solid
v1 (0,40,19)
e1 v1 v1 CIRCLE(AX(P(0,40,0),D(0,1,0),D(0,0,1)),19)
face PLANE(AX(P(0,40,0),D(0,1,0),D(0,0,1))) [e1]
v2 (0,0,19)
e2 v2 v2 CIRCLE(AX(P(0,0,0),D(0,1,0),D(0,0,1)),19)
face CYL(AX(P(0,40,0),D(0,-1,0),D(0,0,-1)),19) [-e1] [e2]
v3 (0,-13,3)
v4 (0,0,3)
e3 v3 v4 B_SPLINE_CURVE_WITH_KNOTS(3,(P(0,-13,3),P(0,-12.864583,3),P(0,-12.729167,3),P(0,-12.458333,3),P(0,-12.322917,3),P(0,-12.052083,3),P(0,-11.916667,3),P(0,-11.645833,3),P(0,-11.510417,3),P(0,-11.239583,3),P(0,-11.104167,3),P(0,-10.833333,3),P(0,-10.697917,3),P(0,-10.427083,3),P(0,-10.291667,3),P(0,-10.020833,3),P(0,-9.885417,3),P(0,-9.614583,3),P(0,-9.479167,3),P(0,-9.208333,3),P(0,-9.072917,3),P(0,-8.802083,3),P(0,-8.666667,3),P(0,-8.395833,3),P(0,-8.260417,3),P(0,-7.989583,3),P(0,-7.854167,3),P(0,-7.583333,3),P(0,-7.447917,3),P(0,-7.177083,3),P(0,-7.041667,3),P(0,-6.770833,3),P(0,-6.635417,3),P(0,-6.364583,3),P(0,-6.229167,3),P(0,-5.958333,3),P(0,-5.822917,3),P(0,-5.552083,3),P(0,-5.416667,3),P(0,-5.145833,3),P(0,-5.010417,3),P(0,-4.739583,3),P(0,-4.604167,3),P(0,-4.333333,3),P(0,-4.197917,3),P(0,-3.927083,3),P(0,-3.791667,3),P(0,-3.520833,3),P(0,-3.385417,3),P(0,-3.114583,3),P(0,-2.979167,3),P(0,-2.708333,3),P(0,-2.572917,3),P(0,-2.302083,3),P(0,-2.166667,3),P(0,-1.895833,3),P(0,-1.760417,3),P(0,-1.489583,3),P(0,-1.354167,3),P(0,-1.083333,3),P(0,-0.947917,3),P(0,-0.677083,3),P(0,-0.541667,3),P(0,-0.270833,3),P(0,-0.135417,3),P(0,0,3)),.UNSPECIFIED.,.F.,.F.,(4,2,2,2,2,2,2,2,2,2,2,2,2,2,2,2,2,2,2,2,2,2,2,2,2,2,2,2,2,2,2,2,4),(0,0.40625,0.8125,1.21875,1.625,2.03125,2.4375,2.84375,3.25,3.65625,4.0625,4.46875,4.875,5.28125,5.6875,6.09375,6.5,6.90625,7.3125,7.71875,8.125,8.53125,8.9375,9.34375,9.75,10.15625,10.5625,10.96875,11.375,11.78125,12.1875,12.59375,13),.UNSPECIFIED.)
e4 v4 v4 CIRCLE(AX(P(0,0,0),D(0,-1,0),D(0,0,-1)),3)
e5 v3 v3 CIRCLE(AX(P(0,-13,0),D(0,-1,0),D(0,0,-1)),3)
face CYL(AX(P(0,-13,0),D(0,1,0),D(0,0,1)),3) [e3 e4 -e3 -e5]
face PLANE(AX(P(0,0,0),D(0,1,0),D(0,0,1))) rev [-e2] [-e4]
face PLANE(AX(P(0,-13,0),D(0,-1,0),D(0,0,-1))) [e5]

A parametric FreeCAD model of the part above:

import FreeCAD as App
import Part
import Sketcher
Q = App.Units.Quantity

doc = App.newDocument("Part")
body = doc.addObject("PartDesign::Body", "Body")

sketch1 = doc.addObject("Sketcher::SketchObject", "Sketch")
body.addObject(sketch1)
sketch1.AttachmentSupport = (doc.XZ_Plane, [""])
sketch1.MapMode = "FlatFace"
sketch1.addGeometry(Part.Circle(App.Vector(0, 0, 0), App.Vector(0, 0, 1), 19), False)
sketch1.addConstraint([
    Sketcher.Constraint("Coincident", 0, 3, -1, 1),
    Sketcher.Constraint("Diameter", 0, Q("38 mm")),
])
pad1 = doc.addObject("PartDesign::Pad", "Pad")
body.addObject(pad1)
pad1.Profile = sketch1
pad1.Length = 40
pad1.Reversed = True

sketch2 = doc.addObject("Sketcher::SketchObject", "Sketch001")
body.addObject(sketch2)
sketch2.AttachmentSupport = (doc.XZ_Plane, [""])
sketch2.MapMode = "FlatFace"
sketch2.addGeometry(Part.Circle(App.Vector(0, 0, 0), App.Vector(0, 0, 1), 3), False)
sketch2.addConstraint([
    Sketcher.Constraint("Coincident", 0, 3, -1, 1),
    Sketcher.Constraint("Diameter", 0, Q("6 mm")),
])
pad2 = doc.addObject("PartDesign::Pad", "Pad001")
body.addObject(pad2)
pad2.Profile = sketch2
pad2.Length = 13

doc.recompute()
